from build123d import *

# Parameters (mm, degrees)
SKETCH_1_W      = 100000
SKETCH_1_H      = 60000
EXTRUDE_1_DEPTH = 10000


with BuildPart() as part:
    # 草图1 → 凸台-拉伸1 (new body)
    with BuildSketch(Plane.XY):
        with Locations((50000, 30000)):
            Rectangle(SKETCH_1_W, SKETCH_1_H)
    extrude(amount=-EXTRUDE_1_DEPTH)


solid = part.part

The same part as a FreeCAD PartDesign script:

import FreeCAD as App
import Part
import Sketcher
Q = App.Units.Quantity


def add_polygon(sketch, points):
    """Adds a closed chain of lines whose ends are joined by coincident constraints."""
    first, n = sketch.GeometryCount, len(points)
    for a, b in zip(points, points[1:] + points[:1]):
        sketch.addGeometry(Part.LineSegment(App.Vector(*a, 0), App.Vector(*b, 0)), False)
    for i in range(n):
        sketch.addConstraint(Sketcher.Constraint("Coincident", first + i, 2, first + (i + 1) % n, 1))

doc = App.newDocument("Part")
body = doc.addObject("PartDesign::Body", "Body")

sketch1 = doc.addObject("Sketcher::SketchObject", "Sketch")
body.addObject(sketch1)
sketch1.AttachmentSupport = (doc.XY_Plane, [""])
sketch1.MapMode = "FlatFace"
add_polygon(sketch1, [(0, 60000), (0, 0), (100000, 0), (100000, 60000)])
sketch1.addConstraint([
    Sketcher.Constraint("Vertical", 0),
    Sketcher.Constraint("Horizontal", 1),
    Sketcher.Constraint("Vertical", 2),
    Sketcher.Constraint("Horizontal", 3),
    Sketcher.Constraint("Coincident", 0, 2, -1, 1),
    Sketcher.Constraint("DistanceX", 1, 1, 1, 2, Q("100000 mm")),
    Sketcher.Constraint("DistanceY", 0, 2, 0, 1, Q("60000 mm")),
])
pad1 = doc.addObject("PartDesign::Pad", "Pad")
body.addObject(pad1)
pad1.Profile = sketch1
pad1.Length = 10000
pad1.Reversed = True

doc.recompute()
